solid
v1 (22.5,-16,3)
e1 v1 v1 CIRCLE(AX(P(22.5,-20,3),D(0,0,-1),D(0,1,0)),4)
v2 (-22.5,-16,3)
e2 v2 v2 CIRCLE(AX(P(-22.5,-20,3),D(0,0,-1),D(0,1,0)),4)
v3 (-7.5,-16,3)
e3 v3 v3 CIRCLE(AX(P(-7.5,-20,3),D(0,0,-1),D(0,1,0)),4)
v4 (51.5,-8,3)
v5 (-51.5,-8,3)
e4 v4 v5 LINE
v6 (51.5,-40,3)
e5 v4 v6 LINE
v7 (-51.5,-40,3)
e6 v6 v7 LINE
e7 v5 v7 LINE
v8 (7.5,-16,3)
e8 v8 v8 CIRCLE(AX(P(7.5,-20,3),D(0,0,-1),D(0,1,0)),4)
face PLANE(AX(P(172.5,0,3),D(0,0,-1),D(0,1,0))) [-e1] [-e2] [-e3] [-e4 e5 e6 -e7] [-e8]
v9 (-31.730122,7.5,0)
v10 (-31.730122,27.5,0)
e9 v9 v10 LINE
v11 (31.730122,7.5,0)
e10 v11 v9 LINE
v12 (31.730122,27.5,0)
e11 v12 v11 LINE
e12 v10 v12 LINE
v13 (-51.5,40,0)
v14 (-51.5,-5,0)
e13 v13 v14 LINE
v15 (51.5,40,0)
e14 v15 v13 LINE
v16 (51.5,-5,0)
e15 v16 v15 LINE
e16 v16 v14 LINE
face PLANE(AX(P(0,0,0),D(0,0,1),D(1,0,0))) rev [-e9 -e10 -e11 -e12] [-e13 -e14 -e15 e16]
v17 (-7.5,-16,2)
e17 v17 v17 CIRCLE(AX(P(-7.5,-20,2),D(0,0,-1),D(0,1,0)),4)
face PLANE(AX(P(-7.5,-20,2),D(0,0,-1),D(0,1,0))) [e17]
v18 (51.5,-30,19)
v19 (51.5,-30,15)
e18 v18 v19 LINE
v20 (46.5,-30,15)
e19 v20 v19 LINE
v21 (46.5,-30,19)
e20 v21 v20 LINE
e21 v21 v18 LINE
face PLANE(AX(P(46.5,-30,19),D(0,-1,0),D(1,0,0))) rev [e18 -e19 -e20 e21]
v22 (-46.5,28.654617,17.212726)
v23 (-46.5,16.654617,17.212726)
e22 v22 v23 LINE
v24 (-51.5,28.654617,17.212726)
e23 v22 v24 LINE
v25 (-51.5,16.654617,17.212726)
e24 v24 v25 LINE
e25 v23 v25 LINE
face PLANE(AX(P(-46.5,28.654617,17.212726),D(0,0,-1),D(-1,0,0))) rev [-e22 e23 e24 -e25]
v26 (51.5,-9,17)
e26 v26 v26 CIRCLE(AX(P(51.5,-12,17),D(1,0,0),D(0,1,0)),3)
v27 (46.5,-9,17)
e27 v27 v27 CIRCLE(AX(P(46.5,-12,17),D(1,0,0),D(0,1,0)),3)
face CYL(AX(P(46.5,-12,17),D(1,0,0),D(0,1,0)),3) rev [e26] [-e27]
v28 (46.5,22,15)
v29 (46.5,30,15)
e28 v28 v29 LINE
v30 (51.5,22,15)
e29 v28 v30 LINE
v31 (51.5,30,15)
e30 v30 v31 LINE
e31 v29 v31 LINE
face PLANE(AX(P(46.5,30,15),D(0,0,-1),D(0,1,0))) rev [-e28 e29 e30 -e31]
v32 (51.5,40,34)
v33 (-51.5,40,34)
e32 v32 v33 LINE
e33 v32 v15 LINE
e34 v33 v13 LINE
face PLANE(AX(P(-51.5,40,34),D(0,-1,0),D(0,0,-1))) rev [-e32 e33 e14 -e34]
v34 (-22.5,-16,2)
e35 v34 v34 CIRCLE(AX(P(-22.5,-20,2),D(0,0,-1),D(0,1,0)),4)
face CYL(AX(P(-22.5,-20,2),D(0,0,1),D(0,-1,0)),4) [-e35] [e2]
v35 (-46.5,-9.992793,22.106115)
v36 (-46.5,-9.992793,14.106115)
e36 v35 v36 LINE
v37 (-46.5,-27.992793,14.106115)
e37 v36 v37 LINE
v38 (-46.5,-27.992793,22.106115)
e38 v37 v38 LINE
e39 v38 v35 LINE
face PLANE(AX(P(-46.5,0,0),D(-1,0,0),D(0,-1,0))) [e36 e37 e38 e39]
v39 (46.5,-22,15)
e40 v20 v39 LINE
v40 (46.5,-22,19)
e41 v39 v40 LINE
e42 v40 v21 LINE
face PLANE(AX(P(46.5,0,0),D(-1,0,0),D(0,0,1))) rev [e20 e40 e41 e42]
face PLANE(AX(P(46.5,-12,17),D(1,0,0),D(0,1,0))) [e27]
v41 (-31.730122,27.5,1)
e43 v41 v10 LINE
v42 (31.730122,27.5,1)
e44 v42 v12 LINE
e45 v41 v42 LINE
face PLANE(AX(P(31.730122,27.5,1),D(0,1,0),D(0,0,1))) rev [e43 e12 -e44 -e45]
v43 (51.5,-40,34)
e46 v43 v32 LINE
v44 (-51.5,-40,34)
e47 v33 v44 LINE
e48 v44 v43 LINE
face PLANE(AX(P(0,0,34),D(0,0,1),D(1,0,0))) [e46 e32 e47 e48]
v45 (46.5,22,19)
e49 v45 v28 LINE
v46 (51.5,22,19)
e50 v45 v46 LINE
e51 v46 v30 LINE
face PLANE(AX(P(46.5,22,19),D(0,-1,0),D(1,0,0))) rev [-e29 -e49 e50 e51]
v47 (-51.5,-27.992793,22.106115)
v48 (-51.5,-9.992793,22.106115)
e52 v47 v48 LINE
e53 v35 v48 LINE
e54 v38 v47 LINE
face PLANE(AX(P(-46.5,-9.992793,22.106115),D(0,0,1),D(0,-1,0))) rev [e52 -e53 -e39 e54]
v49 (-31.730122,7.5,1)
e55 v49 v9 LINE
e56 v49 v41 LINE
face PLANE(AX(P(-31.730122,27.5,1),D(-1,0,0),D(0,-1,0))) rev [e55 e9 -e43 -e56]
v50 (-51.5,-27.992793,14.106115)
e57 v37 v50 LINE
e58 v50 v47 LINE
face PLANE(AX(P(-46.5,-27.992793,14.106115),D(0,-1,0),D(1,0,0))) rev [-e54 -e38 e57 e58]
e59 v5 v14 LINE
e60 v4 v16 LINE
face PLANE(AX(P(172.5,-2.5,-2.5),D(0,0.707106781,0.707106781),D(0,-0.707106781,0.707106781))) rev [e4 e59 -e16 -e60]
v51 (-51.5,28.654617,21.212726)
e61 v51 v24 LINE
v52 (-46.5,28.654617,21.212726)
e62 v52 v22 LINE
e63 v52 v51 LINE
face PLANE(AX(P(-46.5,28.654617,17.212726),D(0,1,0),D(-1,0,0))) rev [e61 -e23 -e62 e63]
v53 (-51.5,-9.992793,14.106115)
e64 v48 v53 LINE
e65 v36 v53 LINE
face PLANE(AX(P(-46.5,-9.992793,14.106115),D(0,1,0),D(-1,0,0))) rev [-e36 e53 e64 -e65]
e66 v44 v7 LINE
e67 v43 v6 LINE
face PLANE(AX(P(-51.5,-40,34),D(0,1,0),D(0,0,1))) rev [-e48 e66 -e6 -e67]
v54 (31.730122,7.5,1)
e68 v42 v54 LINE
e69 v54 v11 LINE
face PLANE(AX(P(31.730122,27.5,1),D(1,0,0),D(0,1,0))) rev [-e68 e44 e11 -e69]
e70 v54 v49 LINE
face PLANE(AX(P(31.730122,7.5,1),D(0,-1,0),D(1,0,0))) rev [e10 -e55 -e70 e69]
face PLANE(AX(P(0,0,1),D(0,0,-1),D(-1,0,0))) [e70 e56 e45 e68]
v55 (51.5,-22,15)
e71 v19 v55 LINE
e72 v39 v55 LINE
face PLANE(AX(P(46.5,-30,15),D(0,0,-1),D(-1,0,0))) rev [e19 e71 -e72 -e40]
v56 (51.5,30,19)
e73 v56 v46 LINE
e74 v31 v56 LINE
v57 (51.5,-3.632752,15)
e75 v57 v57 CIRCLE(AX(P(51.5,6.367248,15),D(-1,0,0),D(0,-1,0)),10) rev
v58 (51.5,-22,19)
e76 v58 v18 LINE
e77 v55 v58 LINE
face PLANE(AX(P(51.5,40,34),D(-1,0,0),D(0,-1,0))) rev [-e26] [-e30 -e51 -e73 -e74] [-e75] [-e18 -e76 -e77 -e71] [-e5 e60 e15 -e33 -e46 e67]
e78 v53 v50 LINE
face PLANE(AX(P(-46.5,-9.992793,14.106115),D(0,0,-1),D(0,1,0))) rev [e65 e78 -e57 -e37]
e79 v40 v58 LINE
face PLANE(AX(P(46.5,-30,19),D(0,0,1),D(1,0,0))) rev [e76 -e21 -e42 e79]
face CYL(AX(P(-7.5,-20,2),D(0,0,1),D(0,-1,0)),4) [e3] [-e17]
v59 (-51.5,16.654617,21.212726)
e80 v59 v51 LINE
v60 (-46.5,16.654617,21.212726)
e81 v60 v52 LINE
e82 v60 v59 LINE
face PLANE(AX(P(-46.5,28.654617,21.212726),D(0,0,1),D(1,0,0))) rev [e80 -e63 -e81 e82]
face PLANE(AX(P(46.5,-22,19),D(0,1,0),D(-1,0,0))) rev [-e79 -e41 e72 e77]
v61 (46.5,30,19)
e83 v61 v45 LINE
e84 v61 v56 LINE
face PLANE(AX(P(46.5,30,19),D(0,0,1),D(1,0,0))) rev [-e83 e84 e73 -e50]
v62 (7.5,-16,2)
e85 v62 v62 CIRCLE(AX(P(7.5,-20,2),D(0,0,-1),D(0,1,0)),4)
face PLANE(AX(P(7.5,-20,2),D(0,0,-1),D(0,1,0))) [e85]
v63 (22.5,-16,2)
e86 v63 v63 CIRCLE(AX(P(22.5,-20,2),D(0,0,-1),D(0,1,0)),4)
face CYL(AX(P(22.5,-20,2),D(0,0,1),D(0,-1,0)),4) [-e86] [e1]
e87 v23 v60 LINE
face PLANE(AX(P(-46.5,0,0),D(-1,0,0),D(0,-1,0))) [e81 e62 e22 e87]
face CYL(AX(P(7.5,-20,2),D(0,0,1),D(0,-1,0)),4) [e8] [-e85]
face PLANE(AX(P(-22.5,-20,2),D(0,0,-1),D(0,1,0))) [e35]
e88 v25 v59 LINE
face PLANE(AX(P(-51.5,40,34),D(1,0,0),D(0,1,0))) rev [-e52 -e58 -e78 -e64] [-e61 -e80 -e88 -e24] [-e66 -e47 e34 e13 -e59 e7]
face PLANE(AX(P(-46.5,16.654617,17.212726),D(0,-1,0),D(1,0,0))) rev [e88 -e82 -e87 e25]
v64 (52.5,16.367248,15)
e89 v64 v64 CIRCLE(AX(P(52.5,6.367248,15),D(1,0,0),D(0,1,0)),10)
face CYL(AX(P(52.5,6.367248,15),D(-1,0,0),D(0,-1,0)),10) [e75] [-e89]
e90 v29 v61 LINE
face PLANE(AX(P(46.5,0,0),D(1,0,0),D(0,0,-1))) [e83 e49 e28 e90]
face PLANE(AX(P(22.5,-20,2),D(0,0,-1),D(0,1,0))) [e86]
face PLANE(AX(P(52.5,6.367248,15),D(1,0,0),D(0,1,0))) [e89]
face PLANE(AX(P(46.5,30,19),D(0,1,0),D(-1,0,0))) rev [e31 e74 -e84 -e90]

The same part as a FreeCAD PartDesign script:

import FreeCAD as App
import Part
import Sketcher

V = App.Vector


def add_polygon(sketch, points):
    """Adds a closed chain of lines whose ends are joined by coincident constraints."""
    first, n = sketch.GeometryCount, len(points)
    for a, b in zip(points, points[1:] + points[:1]):
        sketch.addGeometry(Part.LineSegment(App.Vector(*a, 0), App.Vector(*b, 0)), False)
    for i in range(n):
        sketch.addConstraint(Sketcher.Constraint("Coincident", first + i, 2, first + (i + 1) % n, 1))

doc = App.newDocument("Part")
body = doc.addObject("PartDesign::Body", "Body")

sketch1 = doc.addObject("Sketcher::SketchObject", "Sketch")
body.addObject(sketch1)
sketch1.AttachmentSupport = (doc.XY_Plane, [""])
sketch1.MapMode = "FlatFace"
add_polygon(sketch1, [(-52, 40), (-52, -40), (52, -40), (52, 40)])
sketch1.addConstraint([
    Sketcher.Constraint("Vertical", 0),
    Sketcher.Constraint("Horizontal", 1),
    Sketcher.Constraint("Vertical", 2),
    Sketcher.Constraint("Horizontal", 3),
    Sketcher.Constraint("Symmetric", 0, 2, 2, 2, -1, 1),
    Sketcher.Constraint("DistanceX", 1, 1, 1, 2, 103.0),
    Sketcher.Constraint("DistanceY", 0, 2, 0, 1, 80.0),
])
pad1 = doc.addObject("PartDesign::Pad", "Pad")
body.addObject(pad1)
pad1.Profile = sketch1
pad1.Length = 34

sketch2 = doc.addObject("Sketcher::SketchObject", "Sketch001")
body.addObject(sketch2)
sketch2.AttachmentSupport = (doc.YZ_Plane, [""])
sketch2.MapMode = "FlatFace"
sketch2.AttachmentOffset = App.Placement(V(0, 0, -51.5), App.Rotation())
add_polygon(sketch2, [(-8, 3), (-5, 0), (-40, 0), (-40, 3)])
sketch2.addConstraint([
    Sketcher.Constraint("Horizontal", 1),
    Sketcher.Constraint("Vertical", 2),
    Sketcher.Constraint("Horizontal", 3),
    Sketcher.Constraint("PointOnObject", 0, 2, -1),
    Sketcher.Constraint("DistanceX", 1, 2, 1, 1, 35.0),
    Sketcher.Constraint("DistanceX", 3, 1, 3, 2, 32.0),
    Sketcher.Constraint("DistanceY", 2, 1, 2, 2, 3.0),
    Sketcher.Constraint("DistanceX", 0, 2, -1, 1, 5.0),
])
pocket1 = doc.addObject("PartDesign::Pocket", "Pocket")
body.addObject(pocket1)
pocket1.Profile = sketch2
pocket1.Length = 224
pocket1.Reversed = True

sketch3 = doc.addObject("Sketcher::SketchObject", "Sketch002")
body.addObject(sketch3)
sketch3.AttachmentSupport = (doc.XY_Plane, [""])
sketch3.MapMode = "FlatFace"
add_polygon(sketch3, [(32, 28), (32, 8), (-32, 8), (-32, 28)])
sketch3.addConstraint([
    Sketcher.Constraint("Vertical", 0),
    Sketcher.Constraint("Horizontal", 1),
    Sketcher.Constraint("Vertical", 2),
    Sketcher.Constraint("Horizontal", 3),
    Sketcher.Constraint("DistanceY", 0, 2, 0, 1, 20.0),
    Sketcher.Constraint("DistanceY", -1, 1, 0, 2, 7.5),
    Sketcher.Constraint("DistanceX", 1, 2, 1, 1, 63.460243),
    Sketcher.Constraint("DistanceX", -1, 1, 0, 2, 31.730122),
])
pocket2 = doc.addObject("PartDesign::Pocket", "Pocket001")
body.addObject(pocket2)
pocket2.Profile = sketch3
pocket2.Length = 1
pocket2.Reversed = True

sketch4 = doc.addObject("Sketcher::SketchObject", "Sketch003")
body.addObject(sketch4)
sketch4.AttachmentSupport = (doc.XY_Plane, [""])
sketch4.MapMode = "FlatFace"
sketch4.AttachmentOffset = App.Placement(V(0, 0, 3), App.Rotation())
sketch4.addGeometry([
    Part.Circle(V(7.5, -20, 0), V(0, 0, 1), 4),
    Part.Circle(V(22.5, -20, 0), V(0, 0, 1), 4),
    Part.Circle(V(-7.5, -20, 0), V(0, 0, 1), 4),
    Part.Circle(V(-22.5, -20, 0), V(0, 0, 1), 4),
], False)
sketch4.addConstraint([
    Sketcher.Constraint("Equal", 0, 1),
    Sketcher.Constraint("Equal", 1, 2),
    Sketcher.Constraint("Equal", 2, 3),
    Sketcher.Constraint("Symmetric", 0, 3, 2, 3, -2),
    Sketcher.Constraint("Symmetric", 1, 3, 3, 3, -2),
    Sketcher.Constraint("Horizontal", 0, 3, 1, 3),
    Sketcher.Constraint("Diameter", 0, 8.0),
    Sketcher.Constraint("DistanceY", 0, 3, -1, 1, 20.0),
    Sketcher.Constraint("DistanceX", 0, 3, 1, 3, 15.0),
    Sketcher.Constraint("DistanceX", 2, 3, 0, 3, 15.0),
])
pad2 = doc.addObject("PartDesign::Pad", "Pad001")
body.addObject(pad2)
pad2.Profile = sketch4
pad2.Length = 1
pad2.Reversed = True

sketch5 = doc.addObject("Sketcher::SketchObject", "Sketch004")
body.addObject(sketch5)
sketch5.AttachmentSupport = (doc.YZ_Plane, [""])
sketch5.MapMode = "FlatFace"
sketch5.AttachmentOffset = App.Placement(V(0, 0, 51.5), App.Rotation())
sketch5.addGeometry(Part.Circle(V(-12, 17, 0), V(0, 0, 1), 3), False)
add_polygon(sketch5, [(30, 19), (22, 19), (22, 15), (30, 15)])
add_polygon(sketch5, [(-22, 19), (-30, 19), (-30, 15), (-22, 15)])
sketch5.addConstraint([
    Sketcher.Constraint("Horizontal", 1),
    Sketcher.Constraint("Vertical", 2),
    Sketcher.Constraint("Horizontal", 3),
    Sketcher.Constraint("Vertical", 4),
    Sketcher.Constraint("Horizontal", 5),
    Sketcher.Constraint("Vertical", 6),
    Sketcher.Constraint("Horizontal", 7),
    Sketcher.Constraint("Vertical", 8),
    Sketcher.Constraint("Symmetric", 4, 2, 5, 2, -2),
    Sketcher.Constraint("Symmetric", 2, 2, 7, 2, -2),
    Sketcher.Constraint("Diameter", 0, 6.0),
    Sketcher.Constraint("DistanceX", 1, 2, 1, 1, 8.0),
    Sketcher.Constraint("DistanceY", 2, 2, 2, 1, 4.0),
    Sketcher.Constraint("DistanceX", 0, 3, -1, 1, 12.0),
    Sketcher.Constraint("DistanceY", -1, 1, 0, 3, 17.0),
    Sketcher.Constraint("DistanceX", -1, 1, 1, 2, 22.0),
    Sketcher.Constraint("DistanceY", -1, 1, 1, 2, 19.0),
])
pocket3 = doc.addObject("PartDesign::Pocket", "Pocket002")
body.addObject(pocket3)
pocket3.Profile = sketch5
pocket3.Length = 5

sketch6 = doc.addObject("Sketcher::SketchObject", "Sketch005")
body.addObject(sketch6)
sketch6.AttachmentSupport = (doc.YZ_Plane, [""])
sketch6.MapMode = "FlatFace"
sketch6.AttachmentOffset = App.Placement(V(0, 0, 51.5), App.Rotation())
sketch6.addGeometry(Part.Circle(V(6, 15, 0), V(0, 0, 1), 10), False)
sketch6.addConstraint([
    Sketcher.Constraint("Diameter", 0, 20.0),
    Sketcher.Constraint("DistanceY", -1, 1, 0, 3, 15.0),
    Sketcher.Constraint("DistanceX", -1, 1, 0, 3, 6.367248),
])
pad3 = doc.addObject("PartDesign::Pad", "Pad002")
body.addObject(pad3)
pad3.Profile = sketch6
pad3.Length = 1

sketch7 = doc.addObject("Sketcher::SketchObject", "Sketch006")
body.addObject(sketch7)
sketch7.AttachmentSupport = (doc.YZ_Plane, [""])
sketch7.MapMode = "FlatFace"
sketch7.AttachmentOffset = App.Placement(V(0, 0, -51.5), App.Rotation())
add_polygon(sketch7, [(-10, 14.1), (-28, 14.1), (-28, 22.1), (-10, 22.1)])
add_polygon(sketch7, [(28.7, 17.2), (16.7, 17.2), (16.7, 21.2), (28.7, 21.2)])
sketch7.addConstraint([
    Sketcher.Constraint("Horizontal", 0),
    Sketcher.Constraint("Vertical", 1),
    Sketcher.Constraint("Horizontal", 2),
    Sketcher.Constraint("Vertical", 3),
    Sketcher.Constraint("Horizontal", 4),
    Sketcher.Constraint("Vertical", 5),
    Sketcher.Constraint("Horizontal", 6),
    Sketcher.Constraint("Vertical", 7),
    Sketcher.Constraint("DistanceX", 0, 2, 0, 1, 18.0),
    Sketcher.Constraint("DistanceX", 4, 2, 4, 1, 12.0),
    Sketcher.Constraint("DistanceY", 1, 1, 1, 2, 8.0),
    Sketcher.Constraint("DistanceY", 5, 1, 5, 2, 4.0),
    Sketcher.Constraint("DistanceX", 3, 2, 4, 2, 26.64741),
    Sketcher.Constraint("DistanceY", 3, 2, 4, 2, 3.106611),
    Sketcher.Constraint("DistanceX", 0, 2, -1, 1, 27.992793),
    Sketcher.Constraint("DistanceY", -1, 1, 0, 2, 14.106115),
])
pocket4 = doc.addObject("PartDesign::Pocket", "Pocket003")
body.addObject(pocket4)
pocket4.Profile = sketch7
pocket4.Length = 5
pocket4.Reversed = True

doc.recompute()
